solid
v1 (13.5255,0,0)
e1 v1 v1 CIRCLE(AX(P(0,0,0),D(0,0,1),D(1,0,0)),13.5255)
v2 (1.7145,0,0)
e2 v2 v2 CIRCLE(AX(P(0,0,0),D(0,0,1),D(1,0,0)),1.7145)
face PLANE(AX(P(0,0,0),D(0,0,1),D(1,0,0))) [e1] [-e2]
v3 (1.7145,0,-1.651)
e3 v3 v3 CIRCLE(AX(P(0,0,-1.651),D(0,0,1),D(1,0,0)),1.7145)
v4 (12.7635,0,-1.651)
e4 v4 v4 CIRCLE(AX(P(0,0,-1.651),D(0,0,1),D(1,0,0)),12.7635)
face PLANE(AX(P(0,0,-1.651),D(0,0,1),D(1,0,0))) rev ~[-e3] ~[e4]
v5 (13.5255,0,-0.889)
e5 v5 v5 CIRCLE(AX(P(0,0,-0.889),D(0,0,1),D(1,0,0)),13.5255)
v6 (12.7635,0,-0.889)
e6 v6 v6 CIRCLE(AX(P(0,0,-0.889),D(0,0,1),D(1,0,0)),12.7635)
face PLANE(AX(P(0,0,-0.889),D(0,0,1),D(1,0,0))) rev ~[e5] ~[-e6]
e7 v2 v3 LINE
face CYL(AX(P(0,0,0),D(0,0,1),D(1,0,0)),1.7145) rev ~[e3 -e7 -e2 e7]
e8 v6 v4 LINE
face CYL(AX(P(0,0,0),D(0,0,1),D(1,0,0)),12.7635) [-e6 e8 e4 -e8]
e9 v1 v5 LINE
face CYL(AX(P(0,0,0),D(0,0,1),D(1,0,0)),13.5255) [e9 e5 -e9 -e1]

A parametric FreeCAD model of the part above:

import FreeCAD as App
import Part
import Sketcher
from FreeCAD import Vector
Q = App.Units.Quantity

doc = App.newDocument("Part")
body = doc.addObject("PartDesign::Body", "Body")

sketch1 = body.newObject("Sketcher::SketchObject", "Sketch")
sketch1.AttachmentSupport = (doc.getObject("XY_Plane"), [""])
sketch1.MapMode = "FlatFace"
sketch1.addGeometry(Part.Circle(Vector(0, 0, 0), Vector(0, 0, 1), 14), False)
sketch1.addConstraint(Sketcher.Constraint("Coincident", 0, 3, -1, 1))
sketch1.addConstraint(Sketcher.Constraint("Diameter", 0, Q("1.065 in")))
pad1 = body.newObject("PartDesign::Pad", "Pad")
pad1.Profile = sketch1
pad1.Length = Q("0.035 in")
pad1.Reversed = True

sketch2 = body.newObject("Sketcher::SketchObject", "Sketch001")
sketch2.AttachmentSupport = (doc.getObject("XY_Plane"), [""])
sketch2.MapMode = "FlatFace"
sketch2.addGeometry(Part.Circle(Vector(0, 0, 0), Vector(0, 0, 1), 13), False)
sketch2.addConstraint(Sketcher.Constraint("Coincident", 0, 3, -1, 1))
sketch2.addConstraint(Sketcher.Constraint("Diameter", 0, Q("1.005 in")))
pad2 = body.newObject("PartDesign::Pad", "Pad001")
pad2.Profile = sketch2
pad2.Length = Q("0.065 in")
pad2.Reversed = True

sketch3 = body.newObject("Sketcher::SketchObject", "Sketch002")
sketch3.AttachmentSupport = (doc.getObject("XY_Plane"), [""])
sketch3.MapMode = "FlatFace"
sketch3.addGeometry(Part.Circle(Vector(0, 0, 0), Vector(0, 0, 1), 1.7), False)
sketch3.addConstraint(Sketcher.Constraint("Coincident", 0, 3, -1, 1))
sketch3.addConstraint(Sketcher.Constraint("Diameter", 0, Q("0.135 in")))
pocket1 = body.newObject("PartDesign::Pocket", "Pocket")
pocket1.Profile = sketch3
pocket1.Type = "ThroughAll"

doc.recompute()
